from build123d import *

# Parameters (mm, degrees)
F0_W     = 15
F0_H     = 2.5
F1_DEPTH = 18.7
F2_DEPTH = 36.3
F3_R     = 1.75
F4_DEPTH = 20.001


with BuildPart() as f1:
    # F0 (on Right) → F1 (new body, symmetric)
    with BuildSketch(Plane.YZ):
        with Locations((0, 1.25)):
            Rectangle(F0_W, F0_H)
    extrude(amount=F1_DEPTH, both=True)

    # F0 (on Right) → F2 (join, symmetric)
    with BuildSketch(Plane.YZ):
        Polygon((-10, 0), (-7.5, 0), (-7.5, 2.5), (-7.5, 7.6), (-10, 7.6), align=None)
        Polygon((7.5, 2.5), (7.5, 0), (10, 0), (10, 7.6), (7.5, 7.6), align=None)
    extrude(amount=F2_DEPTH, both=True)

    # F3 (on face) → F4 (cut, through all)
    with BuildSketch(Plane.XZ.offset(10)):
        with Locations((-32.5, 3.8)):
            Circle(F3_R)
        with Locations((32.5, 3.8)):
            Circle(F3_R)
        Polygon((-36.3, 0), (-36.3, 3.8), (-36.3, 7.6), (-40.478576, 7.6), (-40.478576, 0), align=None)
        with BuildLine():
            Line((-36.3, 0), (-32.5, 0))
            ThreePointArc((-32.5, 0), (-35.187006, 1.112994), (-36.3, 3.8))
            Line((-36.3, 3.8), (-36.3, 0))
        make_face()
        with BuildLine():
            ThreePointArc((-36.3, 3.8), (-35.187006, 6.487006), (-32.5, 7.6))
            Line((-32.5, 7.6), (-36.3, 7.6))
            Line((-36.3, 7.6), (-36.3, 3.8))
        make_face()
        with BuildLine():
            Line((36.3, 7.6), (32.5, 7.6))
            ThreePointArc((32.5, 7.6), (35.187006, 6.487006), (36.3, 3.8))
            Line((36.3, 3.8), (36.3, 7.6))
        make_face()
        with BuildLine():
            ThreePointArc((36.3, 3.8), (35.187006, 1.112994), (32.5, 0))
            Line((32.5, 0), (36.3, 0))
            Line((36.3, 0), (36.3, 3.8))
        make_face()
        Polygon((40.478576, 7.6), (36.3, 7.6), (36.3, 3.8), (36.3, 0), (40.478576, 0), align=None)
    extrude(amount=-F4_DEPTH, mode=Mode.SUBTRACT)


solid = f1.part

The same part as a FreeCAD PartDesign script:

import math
import FreeCAD as App
import Part
import Sketcher

V = App.Vector
Q = App.Units.Quantity


def add_polygon(sketch, points):
    """Adds a closed chain of lines whose ends are joined by coincident constraints."""
    first, n = sketch.GeometryCount, len(points)
    for a, b in zip(points, points[1:] + points[:1]):
        sketch.addGeometry(Part.LineSegment(App.Vector(*a, 0), App.Vector(*b, 0)), False)
    for i in range(n):
        sketch.addConstraint(Sketcher.Constraint("Coincident", first + i, 2, first + (i + 1) % n, 1))

doc = App.newDocument("Part")
body = doc.addObject("PartDesign::Body", "Body")

# Sketch on YZ plane
sketch1 = body.newObject("Sketcher::SketchObject", "Sketch")
sketch1.AttachmentSupport = (doc.getObject("YZ_Plane"), [""])
sketch1.MapMode = "FlatFace"
add_polygon(sketch1, [(-7.5, 2.5), (-7.5, 0), (7.5, 0), (7.5, 2.5)])  # lines 0-3
sketch1.addConstraint(Sketcher.Constraint("Vertical", 0))
sketch1.addConstraint(Sketcher.Constraint("Horizontal", 1))
sketch1.addConstraint(Sketcher.Constraint("Vertical", 2))
sketch1.addConstraint(Sketcher.Constraint("Horizontal", 3))
sketch1.addConstraint(Sketcher.Constraint("Symmetric", 0, 2, 1, 2, -1, 1))
sketch1.addConstraint(Sketcher.Constraint("DistanceX", 1, 1, 1, 2, Q("15 mm")))
sketch1.addConstraint(Sketcher.Constraint("DistanceY", 0, 2, 0, 1, Q("2.5 mm")))
pad1 = body.newObject("PartDesign::Pad", "Pad")
pad1.Profile = sketch1
pad1.Length = 37.4
pad1.Midplane = True

# Sketch on YZ plane
sketch2 = body.newObject("Sketcher::SketchObject", "Sketch001")
sketch2.AttachmentSupport = (doc.getObject("YZ_Plane"), [""])
sketch2.MapMode = "FlatFace"
add_polygon(sketch2, [(-10, 0), (-7.5, 0), (-7.5, 7.6), (-10, 7.6)])  # lines 0-3
add_polygon(sketch2, [(7.5, 0), (10, 0), (10, 7.6), (7.5, 7.6)])  # lines 4-7
sketch2.addConstraint(Sketcher.Constraint("Horizontal", 0))
sketch2.addConstraint(Sketcher.Constraint("Vertical", 1))
sketch2.addConstraint(Sketcher.Constraint("Horizontal", 2))
sketch2.addConstraint(Sketcher.Constraint("Vertical", 3))
sketch2.addConstraint(Sketcher.Constraint("Horizontal", 4))
sketch2.addConstraint(Sketcher.Constraint("Vertical", 5))
sketch2.addConstraint(Sketcher.Constraint("Horizontal", 6))
sketch2.addConstraint(Sketcher.Constraint("Vertical", 7))
sketch2.addConstraint(Sketcher.Constraint("Symmetric", 3, 2, 4, 2, -1, 1))
sketch2.addConstraint(Sketcher.Constraint("Symmetric", 1, 2, 6, 2, -2))
sketch2.addConstraint(Sketcher.Constraint("PointOnObject", 0, 2, -1))
sketch2.addConstraint(Sketcher.Constraint("DistanceX", 0, 1, 0, 2, Q("2.5 mm")))
sketch2.addConstraint(Sketcher.Constraint("DistanceY", 1, 1, 1, 2, Q("7.6 mm")))
sketch2.addConstraint(Sketcher.Constraint("DistanceX", 2, 2, -1, 1, Q("10 mm")))
pad2 = body.newObject("PartDesign::Pad", "Pad001")
pad2.Profile = sketch2
pad2.Length = 72.6
pad2.Midplane = True

# Sketch on XZ plane
sketch3 = body.newObject("Sketcher::SketchObject", "Sketch002")
sketch3.AttachmentSupport = (doc.getObject("XZ_Plane"), [""])
sketch3.MapMode = "FlatFace"
sketch3.AttachmentOffset = App.Placement(V(0, 0, 10), App.Rotation())
sketch3.addGeometry(Part.Circle(V(-32.5, 3.8, 0), V(0, 0, 1), 1.8), False)
sketch3.addGeometry(Part.Circle(V(32.5, 3.8, 0), V(0, 0, 1), 1.8), False)
sketch3.addGeometry(Part.LineSegment(V(-40.5, 7.6, 0), V(-40.5, 0, 0)), False)
sketch3.addGeometry(Part.LineSegment(V(-40.5, 0, 0), V(-32.5, 0, 0)), False)
sketch3.addGeometry(Part.ArcOfCircle(Part.Circle(V(-32.5, 3.8, 0), V(0, 0, 1), 3.8), math.radians(180), math.radians(270)), False)
sketch3.addGeometry(Part.ArcOfCircle(Part.Circle(V(-32.5, 3.8, 0), V(0, 0, 1), 3.8), math.radians(90), math.radians(180)), False)
sketch3.addGeometry(Part.LineSegment(V(-32.5, 7.6, 0), V(-40.5, 7.6, 0)), False)
sketch3.addGeometry(Part.ArcOfCircle(Part.Circle(V(32.5, 3.8, 0), V(0, 0, 1), 3.8), math.radians(0), math.radians(90)), False)
sketch3.addGeometry(Part.ArcOfCircle(Part.Circle(V(32.5, 3.8, 0), V(0, 0, 1), 3.8), math.radians(-90), math.radians(0)), False)
sketch3.addGeometry(Part.LineSegment(V(32.5, 0, 0), V(40.5, 0, 0)), False)
sketch3.addGeometry(Part.LineSegment(V(40.5, 0, 0), V(40.5, 7.6, 0)), False)
sketch3.addGeometry(Part.LineSegment(V(40.5, 7.6, 0), V(32.5, 7.6, 0)), False)
sketch3.addConstraint(Sketcher.Constraint("Coincident", 2, 2, 3, 1))
sketch3.addConstraint(Sketcher.Constraint("Tangent", 3, 2, 4, 2))
sketch3.addConstraint(Sketcher.Constraint("Tangent", 4, 1, 5, 2))
sketch3.addConstraint(Sketcher.Constraint("Tangent", 5, 1, 6, 1))
sketch3.addConstraint(Sketcher.Constraint("Coincident", 6, 2, 2, 1))
sketch3.addConstraint(Sketcher.Constraint("Tangent", 7, 1, 8, 2))
sketch3.addConstraint(Sketcher.Constraint("Tangent", 8, 1, 9, 1))
sketch3.addConstraint(Sketcher.Constraint("Coincident", 9, 2, 10, 1))
sketch3.addConstraint(Sketcher.Constraint("Coincident", 10, 2, 11, 1))
sketch3.addConstraint(Sketcher.Constraint("Tangent", 11, 2, 7, 2))
sketch3.addConstraint(Sketcher.Constraint("Vertical", 2))
sketch3.addConstraint(Sketcher.Constraint("Horizontal", 3))
sketch3.addConstraint(Sketcher.Constraint("Horizontal", 6))
sketch3.addConstraint(Sketcher.Constraint("Horizontal", 9))
sketch3.addConstraint(Sketcher.Constraint("Vertical", 10))
sketch3.addConstraint(Sketcher.Constraint("Horizontal", 11))
sketch3.addConstraint(Sketcher.Constraint("Coincident", 4, 3, 0, 3))
sketch3.addConstraint(Sketcher.Constraint("Coincident", 7, 3, 1, 3))
sketch3.addConstraint(Sketcher.Constraint("Equal", 0, 1))
sketch3.addConstraint(Sketcher.Constraint("Equal", 4, 5))
sketch3.addConstraint(Sketcher.Constraint("Equal", 5, 7))
sketch3.addConstraint(Sketcher.Constraint("Equal", 7, 8))
sketch3.addConstraint(Sketcher.Constraint("Symmetric", 3, 2, 8, 1, -1, 1))
sketch3.addConstraint(Sketcher.Constraint("Symmetric", 2, 2, 9, 2, -2))
sketch3.addConstraint(Sketcher.Constraint("Horizontal", 8, 3, 4, 1))
sketch3.addConstraint(Sketcher.Constraint("Horizontal", 4, 1, 7, 1))
sketch3.addConstraint(Sketcher.Constraint("Diameter", 0, Q("3.5 mm")))
sketch3.addConstraint(Sketcher.Constraint("Radius", 4, Q("3.799999 mm")))
sketch3.addConstraint(Sketcher.Constraint("DistanceX", 0, 3, 1, 3, Q("65 mm")))
sketch3.addConstraint(Sketcher.Constraint("DistanceX", 3, 1, 3, 2, Q("7.978576 mm")))
pocket1 = body.newObject("PartDesign::Pocket", "Pocket")
pocket1.Profile = sketch3
pocket1.Type = "ThroughAll"

doc.recompute()
